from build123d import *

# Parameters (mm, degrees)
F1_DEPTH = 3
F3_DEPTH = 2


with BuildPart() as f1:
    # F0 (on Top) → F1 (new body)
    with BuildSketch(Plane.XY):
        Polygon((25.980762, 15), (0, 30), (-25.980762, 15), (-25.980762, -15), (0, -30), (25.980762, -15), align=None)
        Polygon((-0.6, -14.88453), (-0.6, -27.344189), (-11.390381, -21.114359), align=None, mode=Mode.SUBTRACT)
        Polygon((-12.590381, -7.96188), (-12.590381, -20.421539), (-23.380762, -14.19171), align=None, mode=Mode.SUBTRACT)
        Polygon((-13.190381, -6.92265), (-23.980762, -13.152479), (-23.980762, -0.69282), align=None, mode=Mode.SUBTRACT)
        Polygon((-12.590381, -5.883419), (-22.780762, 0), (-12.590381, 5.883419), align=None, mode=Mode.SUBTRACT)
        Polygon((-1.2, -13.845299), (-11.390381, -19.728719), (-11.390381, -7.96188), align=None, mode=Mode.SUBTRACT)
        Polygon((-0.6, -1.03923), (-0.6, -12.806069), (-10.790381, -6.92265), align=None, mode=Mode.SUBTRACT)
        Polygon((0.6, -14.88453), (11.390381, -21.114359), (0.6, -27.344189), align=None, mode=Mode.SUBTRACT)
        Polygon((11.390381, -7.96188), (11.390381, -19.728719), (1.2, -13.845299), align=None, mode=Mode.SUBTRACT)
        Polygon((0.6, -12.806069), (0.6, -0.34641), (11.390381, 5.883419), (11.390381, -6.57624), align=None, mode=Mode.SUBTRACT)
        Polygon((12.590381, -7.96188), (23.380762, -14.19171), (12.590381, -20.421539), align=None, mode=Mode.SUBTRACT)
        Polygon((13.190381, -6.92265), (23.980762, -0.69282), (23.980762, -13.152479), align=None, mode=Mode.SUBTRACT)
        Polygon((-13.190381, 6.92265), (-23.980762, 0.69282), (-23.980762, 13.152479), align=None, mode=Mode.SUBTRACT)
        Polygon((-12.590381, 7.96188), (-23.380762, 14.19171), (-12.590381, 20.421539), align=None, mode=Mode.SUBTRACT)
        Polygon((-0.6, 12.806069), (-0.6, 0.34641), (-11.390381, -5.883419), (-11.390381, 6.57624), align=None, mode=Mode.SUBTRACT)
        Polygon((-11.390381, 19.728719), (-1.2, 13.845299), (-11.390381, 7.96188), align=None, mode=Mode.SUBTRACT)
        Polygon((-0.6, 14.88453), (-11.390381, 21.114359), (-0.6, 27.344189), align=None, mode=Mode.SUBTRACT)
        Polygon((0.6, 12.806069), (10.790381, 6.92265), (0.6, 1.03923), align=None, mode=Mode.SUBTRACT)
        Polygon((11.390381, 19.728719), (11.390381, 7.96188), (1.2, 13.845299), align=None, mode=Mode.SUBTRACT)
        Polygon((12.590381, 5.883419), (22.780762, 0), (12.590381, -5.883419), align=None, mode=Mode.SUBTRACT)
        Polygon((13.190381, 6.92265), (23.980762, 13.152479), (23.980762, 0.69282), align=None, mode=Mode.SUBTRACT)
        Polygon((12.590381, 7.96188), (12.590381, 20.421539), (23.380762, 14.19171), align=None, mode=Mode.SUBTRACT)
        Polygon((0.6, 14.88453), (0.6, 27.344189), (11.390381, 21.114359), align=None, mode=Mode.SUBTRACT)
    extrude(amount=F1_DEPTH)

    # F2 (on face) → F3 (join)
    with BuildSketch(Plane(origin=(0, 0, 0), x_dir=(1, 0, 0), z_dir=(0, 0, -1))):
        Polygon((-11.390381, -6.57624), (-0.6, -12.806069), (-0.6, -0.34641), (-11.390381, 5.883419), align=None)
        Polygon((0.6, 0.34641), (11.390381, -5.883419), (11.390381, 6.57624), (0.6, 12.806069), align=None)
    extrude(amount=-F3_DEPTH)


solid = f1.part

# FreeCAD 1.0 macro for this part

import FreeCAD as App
import Part
import Sketcher

V = App.Vector
Q = App.Units.Quantity

doc = App.newDocument("Part")
body = doc.addObject("PartDesign::Body", "Body")

sketch1 = body.newObject("Sketcher::SketchObject", "Sketch")
sketch1.AttachmentSupport = (doc.getObject("XY_Plane"), [""])
sketch1.MapMode = "FlatFace"
sketch1.addGeometry([
    Part.LineSegment(V(26, 15, 0), V(0, 30, 0)),
    Part.LineSegment(V(0, 30, 0), V(-26, 15, 0)),
    Part.LineSegment(V(-26, 15, 0), V(-26, -15, 0)),
    Part.LineSegment(V(-26, -15, 0), V(0, -30, 0)),
    Part.LineSegment(V(0, -30, 0), V(26, -15, 0)),
    Part.LineSegment(V(26, -15, 0), V(26, 15, 0)),
    Part.LineSegment(V(-23, -14, 0), V(-13, -8, 0)),
    Part.LineSegment(V(-13, -8, 0), V(-13, -20, 0)),
    Part.LineSegment(V(-13, -20, 0), V(-23, -14, 0)),
    Part.LineSegment(V(-11, -21, 0), V(-1, -15, 0)),
    Part.LineSegment(V(-1, -15, 0), V(-1, -27, 0)),
    Part.LineSegment(V(-1, -27, 0), V(-11, -21, 0)),
    Part.LineSegment(V(-11, -8, 0), V(-1, -14, 0)),
    Part.LineSegment(V(-1, -14, 0), V(-11, -20, 0)),
    Part.LineSegment(V(-11, -20, 0), V(-11, -8, 0)),
    Part.LineSegment(V(-24, -1, 0), V(-13, -7, 0)),
    Part.LineSegment(V(-13, -7, 0), V(-24, -13, 0)),
    Part.LineSegment(V(-24, -13, 0), V(-24, -1, 0)),
    Part.LineSegment(V(-11, -7, 0), V(-1, -1, 0)),
    Part.LineSegment(V(-1, -1, 0), V(-1, -13, 0)),
    Part.LineSegment(V(-1, -13, 0), V(-11, -7, 0)),
    Part.LineSegment(V(1, -27, 0), V(1, -15, 0)),
    Part.LineSegment(V(1, -15, 0), V(11, -21, 0)),
    Part.LineSegment(V(11, -21, 0), V(1, -27, 0)),
    Part.LineSegment(V(1, -14, 0), V(11, -8, 0)),
    Part.LineSegment(V(11, -8, 0), V(11, -20, 0)),
    Part.LineSegment(V(11, -20, 0), V(1, -14, 0)),
    Part.LineSegment(V(13, -20, 0), V(13, -8, 0)),
    Part.LineSegment(V(13, -8, 0), V(23, -14, 0)),
    Part.LineSegment(V(23, -14, 0), V(13, -20, 0)),
    Part.LineSegment(V(11, -7, 0), V(1, -13, 0)),
    Part.LineSegment(V(1, -13, 0), V(1, 0, 0)),
    Part.LineSegment(V(1, 0, 0), V(11, 6, 0)),
    Part.LineSegment(V(11, 6, 0), V(11, -7, 0)),
    Part.LineSegment(V(24, -13, 0), V(13, -7, 0)),
    Part.LineSegment(V(13, -7, 0), V(24, -1, 0)),
    Part.LineSegment(V(24, -1, 0), V(24, -13, 0)),
    Part.LineSegment(V(-13, 6, 0), V(-13, -6, 0)),
    Part.LineSegment(V(-13, -6, 0), V(-23, 0, 0)),
    Part.LineSegment(V(-23, 0, 0), V(-13, 6, 0)),
    Part.LineSegment(V(-24, 13, 0), V(-13, 7, 0)),
    Part.LineSegment(V(-13, 7, 0), V(-24, 1, 0)),
    Part.LineSegment(V(-24, 1, 0), V(-24, 13, 0)),
    Part.LineSegment(V(-11, 7, 0), V(-1, 13, 0)),
    Part.LineSegment(V(-1, 13, 0), V(-1, 0, 0)),
    Part.LineSegment(V(-1, 0, 0), V(-11, -6, 0)),
    Part.LineSegment(V(-11, -6, 0), V(-11, 7, 0)),
    Part.LineSegment(V(-13, 20, 0), V(-13, 8, 0)),
    Part.LineSegment(V(-13, 8, 0), V(-23, 14, 0)),
    Part.LineSegment(V(-23, 14, 0), V(-13, 20, 0)),
    Part.LineSegment(V(-11, 8, 0), V(-11, 20, 0)),
    Part.LineSegment(V(-11, 20, 0), V(-1, 14, 0)),
    Part.LineSegment(V(-1, 14, 0), V(-11, 8, 0)),
    Part.LineSegment(V(-1, 27, 0), V(-1, 15, 0)),
    Part.LineSegment(V(-1, 15, 0), V(-11, 21, 0)),
    Part.LineSegment(V(-11, 21, 0), V(-1, 27, 0)),
    Part.LineSegment(V(1, 1, 0), V(1, 13, 0)),
    Part.LineSegment(V(1, 13, 0), V(11, 7, 0)),
    Part.LineSegment(V(11, 7, 0), V(1, 1, 0)),
    Part.LineSegment(V(13, -6, 0), V(13, 6, 0)),
    Part.LineSegment(V(13, 6, 0), V(23, 0, 0)),
    Part.LineSegment(V(23, 0, 0), V(13, -6, 0)),
    Part.LineSegment(V(24, 1, 0), V(13, 7, 0)),
    Part.LineSegment(V(13, 7, 0), V(24, 13, 0)),
    Part.LineSegment(V(24, 13, 0), V(24, 1, 0)),
    Part.LineSegment(V(1, 14, 0), V(11, 20, 0)),
    Part.LineSegment(V(11, 20, 0), V(11, 8, 0)),
    Part.LineSegment(V(11, 8, 0), V(1, 14, 0)),
    Part.LineSegment(V(11, 21, 0), V(1, 15, 0)),
    Part.LineSegment(V(1, 15, 0), V(1, 27, 0)),
    Part.LineSegment(V(1, 27, 0), V(11, 21, 0)),
    Part.LineSegment(V(23, 14, 0), V(13, 8, 0)),
    Part.LineSegment(V(13, 8, 0), V(13, 20, 0)),
    Part.LineSegment(V(13, 20, 0), V(23, 14, 0)),
], False)
sketch1.addConstraint([
    Sketcher.Constraint("Coincident", 0, 2, 1, 1),
    Sketcher.Constraint("Coincident", 1, 2, 2, 1),
    Sketcher.Constraint("Coincident", 2, 2, 3, 1),
    Sketcher.Constraint("Coincident", 3, 2, 4, 1),
    Sketcher.Constraint("Coincident", 4, 2, 5, 1),
    Sketcher.Constraint("Coincident", 5, 2, 0, 1),
    Sketcher.Constraint("Coincident", 6, 2, 7, 1),
    Sketcher.Constraint("Coincident", 7, 2, 8, 1),
    Sketcher.Constraint("Coincident", 8, 2, 6, 1),
    Sketcher.Constraint("Coincident", 9, 2, 10, 1),
    Sketcher.Constraint("Coincident", 10, 2, 11, 1),
    Sketcher.Constraint("Coincident", 11, 2, 9, 1),
    Sketcher.Constraint("Coincident", 12, 2, 13, 1),
    Sketcher.Constraint("Coincident", 13, 2, 14, 1),
    Sketcher.Constraint("Coincident", 14, 2, 12, 1),
    Sketcher.Constraint("Coincident", 15, 2, 16, 1),
    Sketcher.Constraint("Coincident", 16, 2, 17, 1),
    Sketcher.Constraint("Coincident", 17, 2, 15, 1),
    Sketcher.Constraint("Coincident", 18, 2, 19, 1),
    Sketcher.Constraint("Coincident", 19, 2, 20, 1),
    Sketcher.Constraint("Coincident", 20, 2, 18, 1),
    Sketcher.Constraint("Coincident", 21, 2, 22, 1),
    Sketcher.Constraint("Coincident", 22, 2, 23, 1),
    Sketcher.Constraint("Coincident", 23, 2, 21, 1),
    Sketcher.Constraint("Coincident", 24, 2, 25, 1),
    Sketcher.Constraint("Coincident", 25, 2, 26, 1),
    Sketcher.Constraint("Coincident", 26, 2, 24, 1),
    Sketcher.Constraint("Coincident", 27, 2, 28, 1),
    Sketcher.Constraint("Coincident", 28, 2, 29, 1),
    Sketcher.Constraint("Coincident", 29, 2, 27, 1),
    Sketcher.Constraint("Coincident", 30, 2, 31, 1),
    Sketcher.Constraint("Coincident", 31, 2, 32, 1),
    Sketcher.Constraint("Coincident", 32, 2, 33, 1),
    Sketcher.Constraint("Coincident", 33, 2, 30, 1),
    Sketcher.Constraint("Coincident", 34, 2, 35, 1),
    Sketcher.Constraint("Coincident", 35, 2, 36, 1),
    Sketcher.Constraint("Coincident", 36, 2, 34, 1),
    Sketcher.Constraint("Coincident", 37, 2, 38, 1),
    Sketcher.Constraint("Coincident", 38, 2, 39, 1),
    Sketcher.Constraint("Coincident", 39, 2, 37, 1),
    Sketcher.Constraint("Coincident", 40, 2, 41, 1),
    Sketcher.Constraint("Coincident", 41, 2, 42, 1),
    Sketcher.Constraint("Coincident", 42, 2, 40, 1),
    Sketcher.Constraint("Coincident", 43, 2, 44, 1),
    Sketcher.Constraint("Coincident", 44, 2, 45, 1),
    Sketcher.Constraint("Coincident", 45, 2, 46, 1),
    Sketcher.Constraint("Coincident", 46, 2, 43, 1),
    Sketcher.Constraint("Coincident", 47, 2, 48, 1),
    Sketcher.Constraint("Coincident", 48, 2, 49, 1),
    Sketcher.Constraint("Coincident", 49, 2, 47, 1),
    Sketcher.Constraint("Coincident", 50, 2, 51, 1),
    Sketcher.Constraint("Coincident", 51, 2, 52, 1),
    Sketcher.Constraint("Coincident", 52, 2, 50, 1),
    Sketcher.Constraint("Coincident", 53, 2, 54, 1),
    Sketcher.Constraint("Coincident", 54, 2, 55, 1),
    Sketcher.Constraint("Coincident", 55, 2, 53, 1),
    Sketcher.Constraint("Coincident", 56, 2, 57, 1),
    Sketcher.Constraint("Coincident", 57, 2, 58, 1),
    Sketcher.Constraint("Coincident", 58, 2, 56, 1),
    Sketcher.Constraint("Coincident", 59, 2, 60, 1),
    Sketcher.Constraint("Coincident", 60, 2, 61, 1),
    Sketcher.Constraint("Coincident", 61, 2, 59, 1),
    Sketcher.Constraint("Coincident", 62, 2, 63, 1),
    Sketcher.Constraint("Coincident", 63, 2, 64, 1),
    Sketcher.Constraint("Coincident", 64, 2, 62, 1),
    Sketcher.Constraint("Coincident", 65, 2, 66, 1),
    Sketcher.Constraint("Coincident", 66, 2, 67, 1),
    Sketcher.Constraint("Coincident", 67, 2, 65, 1),
    Sketcher.Constraint("Coincident", 68, 2, 69, 1),
    Sketcher.Constraint("Coincident", 69, 2, 70, 1),
    Sketcher.Constraint("Coincident", 70, 2, 68, 1),
    Sketcher.Constraint("Coincident", 71, 2, 72, 1),
    Sketcher.Constraint("Coincident", 72, 2, 73, 1),
    Sketcher.Constraint("Coincident", 73, 2, 71, 1),
    Sketcher.Constraint("Vertical", 2),
    Sketcher.Constraint("Vertical", 5),
    Sketcher.Constraint("Vertical", 7),
    Sketcher.Constraint("Vertical", 10),
    Sketcher.Constraint("Vertical", 14),
    Sketcher.Constraint("Vertical", 17),
    Sketcher.Constraint("Vertical", 19),
    Sketcher.Constraint("Vertical", 21),
    Sketcher.Constraint("Vertical", 25),
    Sketcher.Constraint("Vertical", 27),
    Sketcher.Constraint("Vertical", 31),
    Sketcher.Constraint("Vertical", 33),
    Sketcher.Constraint("Vertical", 36),
    Sketcher.Constraint("Vertical", 37),
    Sketcher.Constraint("Vertical", 42),
    Sketcher.Constraint("Vertical", 44),
    Sketcher.Constraint("Vertical", 46),
    Sketcher.Constraint("Vertical", 47),
    Sketcher.Constraint("Vertical", 50),
    Sketcher.Constraint("Vertical", 53),
    Sketcher.Constraint("Vertical", 56),
    Sketcher.Constraint("Vertical", 59),
    Sketcher.Constraint("Vertical", 64),
    Sketcher.Constraint("Vertical", 66),
    Sketcher.Constraint("Vertical", 69),
    Sketcher.Constraint("Vertical", 72),
    Sketcher.Constraint("Symmetric", 0, 2, 3, 2, -1, 1),
    Sketcher.Constraint("Symmetric", 1, 2, 4, 2, -1, 1),
    Sketcher.Constraint("Symmetric", 34, 2, 40, 2, -1, 1),
    Sketcher.Constraint("Symmetric", 35, 2, 41, 2, -1, 1),
    Sketcher.Constraint("Symmetric", 30, 2, 43, 2, -1, 1),
    Sketcher.Constraint("Symmetric", 32, 2, 45, 2, -1, 1),
    Sketcher.Constraint("Symmetric", 27, 2, 47, 2, -1, 1),
    Sketcher.Constraint("Symmetric", 28, 2, 48, 2, -1, 1),
    Sketcher.Constraint("Symmetric", 25, 2, 50, 2, -1, 1),
    Sketcher.Constraint("Symmetric", 26, 2, 51, 2, -1, 1),
    Sketcher.Constraint("Symmetric", 21, 2, 53, 2, -1, 1),
    Sketcher.Constraint("Symmetric", 22, 2, 54, 2, -1, 1),
    Sketcher.Constraint("Symmetric", 19, 2, 56, 2, -1, 1),
    Sketcher.Constraint("Symmetric", 20, 2, 57, 2, -1, 1),
    Sketcher.Constraint("Symmetric", 37, 2, 59, 2, -1, 1),
    Sketcher.Constraint("Symmetric", 38, 2, 60, 2, -1, 1),
    Sketcher.Constraint("Symmetric", 15, 2, 62, 2, -1, 1),
    Sketcher.Constraint("Symmetric", 16, 2, 63, 2, -1, 1),
    Sketcher.Constraint("Symmetric", 13, 2, 65, 2, -1, 1),
    Sketcher.Constraint("Symmetric", 12, 2, 67, 2, -1, 1),
    Sketcher.Constraint("Symmetric", 9, 2, 68, 2, -1, 1),
    Sketcher.Constraint("Symmetric", 11, 2, 70, 2, -1, 1),
    Sketcher.Constraint("Symmetric", 6, 2, 71, 2, -1, 1),
    Sketcher.Constraint("Symmetric", 8, 2, 73, 2, -1, 1),
    Sketcher.Constraint("Symmetric", 9, 2, 21, 2, -2),
    Sketcher.Constraint("Symmetric", 11, 2, 22, 2, -2),
    Sketcher.Constraint("Symmetric", 14, 2, 24, 2, -2),
    Sketcher.Constraint("Symmetric", 12, 2, 26, 2, -2),
    Sketcher.Constraint("Symmetric", 6, 2, 27, 2, -2),
    Sketcher.Constraint("Symmetric", 8, 2, 28, 2, -2),
    Sketcher.Constraint("Symmetric", 19, 2, 30, 2, -2),
    Sketcher.Constraint("Symmetric", 15, 2, 34, 2, -2),
    Sketcher.Constraint("Symmetric", 17, 2, 35, 2, -2),
    Sketcher.Constraint("PointOnObject", 0, 2, -2),
    Sketcher.Constraint("PointOnObject", 38, 2, -1),
    Sketcher.Constraint("Parallel", 0, 3),
    Sketcher.Constraint("Parallel", 4, 6),
    Sketcher.Constraint("Parallel", 3, 8),
    Sketcher.Constraint("Parallel", 6, 9),
    Sketcher.Constraint("Parallel", 8, 11),
    Sketcher.Constraint("Parallel", 11, 12),
    Sketcher.Constraint("Parallel", 9, 13),
    Sketcher.Constraint("Parallel", 12, 15),
    Sketcher.Constraint("Parallel", 13, 16),
    Sketcher.Constraint("Parallel", 16, 18),
    Sketcher.Constraint("Parallel", 15, 20),
    Sketcher.Constraint("Parallel", 20, 22),
    Sketcher.Constraint("Parallel", 18, 23),
    Sketcher.Constraint("Parallel", 22, 26),
    Sketcher.Constraint("Parallel", 24, 29),
    Sketcher.Constraint("Parallel", 29, 30),
    Sketcher.Constraint("Parallel", 30, 32),
    Sketcher.Constraint("Parallel", 28, 34),
    Sketcher.Constraint("Parallel", 34, 38),
    Sketcher.Constraint("Parallel", 35, 39),
    Sketcher.Constraint("Parallel", 38, 40),
    Sketcher.Constraint("Parallel", 41, 43),
    Sketcher.Constraint("Parallel", 43, 45),
    Sketcher.Constraint("Parallel", 45, 49),
    Sketcher.Constraint("Parallel", 49, 52),
    Sketcher.Constraint("Parallel", 52, 55),
    Sketcher.Constraint("Parallel", 55, 58),
    Sketcher.Constraint("Parallel", 58, 61),
    Sketcher.Constraint("Parallel", 60, 62),
    Sketcher.Constraint("Parallel", 62, 67),
    Sketcher.Constraint("Parallel", 67, 70),
    Sketcher.Constraint("Parallel", 70, 73),
    Sketcher.Constraint("Horizontal", 6, 2, 14, 2),
    Sketcher.Constraint("Horizontal", 15, 2, 20, 2),
    Sketcher.Constraint("Horizontal", 32, 2, 39, 2),
    Sketcher.Constraint("Vertical", 11, 2, 13, 2),
    Sketcher.Constraint("Vertical", 10, 2, 18, 2),
    Sketcher.Constraint("Vertical", 25, 2, 32, 2),
    Sketcher.Constraint("Vertical", 7, 2, 37, 2),
    Sketcher.Constraint("Equal", 7, 10),
    Sketcher.Constraint("Equal", 10, 17),
    Sketcher.Constraint("Equal", 14, 19),
    Sketcher.Constraint("Equal", 27, 31),
    Sketcher.Constraint("Equal", 25, 37),
    Sketcher.Constraint("DistanceY", 2, 2, 2, 1, Q("30 mm")),
    Sketcher.Constraint("Angle", 0, Q("150 deg")),
    Sketcher.Constraint("Distance", 0, Q("30 mm")),
    Sketcher.Constraint("DistanceX", 9, 2, -1, 1, Q("0.6 mm")),
    Sketcher.Constraint("DistanceX", 12, 2, -1, 1, Q("1.2 mm")),
    Sketcher.Constraint("DistanceY", 7, 2, 7, 1, Q("12.459659 mm")),
    Sketcher.Constraint("DistanceY", 12, 2, -1, 1, Q("13.845299 mm")),
    Sketcher.Constraint("DistanceX", 6, 2, -1, 1, Q("12.590381 mm")),
    Sketcher.Constraint("DistanceY", 9, 2, -1, 1, Q("14.88453 mm")),
    Sketcher.Constraint("DistanceX", 15, 2, -1, 1, Q("13.190381 mm")),
])
pad1 = body.newObject("PartDesign::Pad", "Pad")
pad1.Profile = sketch1
pad1.Length = 3

sketch2 = body.newObject("Sketcher::SketchObject", "Sketch001")
sketch2.AttachmentSupport = (doc.getObject("XY_Plane"), [""])
sketch2.MapMode = "FlatFace"
sketch2.addGeometry([
    Part.LineSegment(V(-11, 7, 0), V(-1, 13, 0)),
    Part.LineSegment(V(-1, 13, 0), V(-1, 0, 0)),
    Part.LineSegment(V(-1, 0, 0), V(-11, -6, 0)),
    Part.LineSegment(V(-11, -6, 0), V(-11, 7, 0)),
    Part.LineSegment(V(1, 0, 0), V(11, 6, 0)),
    Part.LineSegment(V(11, 6, 0), V(11, -7, 0)),
    Part.LineSegment(V(11, -7, 0), V(1, -13, 0)),
    Part.LineSegment(V(1, -13, 0), V(1, 0, 0)),
], False)
sketch2.addConstraint([
    Sketcher.Constraint("Coincident", 0, 2, 1, 1),
    Sketcher.Constraint("Coincident", 1, 2, 2, 1),
    Sketcher.Constraint("Coincident", 2, 2, 3, 1),
    Sketcher.Constraint("Coincident", 3, 2, 0, 1),
    Sketcher.Constraint("Coincident", 4, 2, 5, 1),
    Sketcher.Constraint("Coincident", 5, 2, 6, 1),
    Sketcher.Constraint("Coincident", 6, 2, 7, 1),
    Sketcher.Constraint("Coincident", 7, 2, 4, 1),
    Sketcher.Constraint("Vertical", 1),
    Sketcher.Constraint("Vertical", 3),
    Sketcher.Constraint("Vertical", 5),
    Sketcher.Constraint("Vertical", 7),
    Sketcher.Constraint("Symmetric", 2, 2, 4, 2, -1, 1),
    Sketcher.Constraint("Symmetric", 0, 2, 6, 2, -1, 1),
    Sketcher.Constraint("Parallel", 0, 2),
    Sketcher.Constraint("Parallel", 2, 4),
    Sketcher.Constraint("Parallel", 4, 6),
    Sketcher.Constraint("Angle", 0, Q("29.999999 deg")),
    Sketcher.Constraint("DistanceX", 0, 2, -1, 1, Q("0.6 mm")),
    Sketcher.Constraint("DistanceY", 1, 2, 1, 1, Q("12.459659 mm")),
    Sketcher.Constraint("Distance", 0, Q("12.459659 mm")),
    Sketcher.Constraint("DistanceY", -1, 1, 0, 2, Q("12.806069 mm")),
])
pad2 = body.newObject("PartDesign::Pad", "Pad001")
pad2.Profile = sketch2
pad2.Length = 2

doc.recompute()
